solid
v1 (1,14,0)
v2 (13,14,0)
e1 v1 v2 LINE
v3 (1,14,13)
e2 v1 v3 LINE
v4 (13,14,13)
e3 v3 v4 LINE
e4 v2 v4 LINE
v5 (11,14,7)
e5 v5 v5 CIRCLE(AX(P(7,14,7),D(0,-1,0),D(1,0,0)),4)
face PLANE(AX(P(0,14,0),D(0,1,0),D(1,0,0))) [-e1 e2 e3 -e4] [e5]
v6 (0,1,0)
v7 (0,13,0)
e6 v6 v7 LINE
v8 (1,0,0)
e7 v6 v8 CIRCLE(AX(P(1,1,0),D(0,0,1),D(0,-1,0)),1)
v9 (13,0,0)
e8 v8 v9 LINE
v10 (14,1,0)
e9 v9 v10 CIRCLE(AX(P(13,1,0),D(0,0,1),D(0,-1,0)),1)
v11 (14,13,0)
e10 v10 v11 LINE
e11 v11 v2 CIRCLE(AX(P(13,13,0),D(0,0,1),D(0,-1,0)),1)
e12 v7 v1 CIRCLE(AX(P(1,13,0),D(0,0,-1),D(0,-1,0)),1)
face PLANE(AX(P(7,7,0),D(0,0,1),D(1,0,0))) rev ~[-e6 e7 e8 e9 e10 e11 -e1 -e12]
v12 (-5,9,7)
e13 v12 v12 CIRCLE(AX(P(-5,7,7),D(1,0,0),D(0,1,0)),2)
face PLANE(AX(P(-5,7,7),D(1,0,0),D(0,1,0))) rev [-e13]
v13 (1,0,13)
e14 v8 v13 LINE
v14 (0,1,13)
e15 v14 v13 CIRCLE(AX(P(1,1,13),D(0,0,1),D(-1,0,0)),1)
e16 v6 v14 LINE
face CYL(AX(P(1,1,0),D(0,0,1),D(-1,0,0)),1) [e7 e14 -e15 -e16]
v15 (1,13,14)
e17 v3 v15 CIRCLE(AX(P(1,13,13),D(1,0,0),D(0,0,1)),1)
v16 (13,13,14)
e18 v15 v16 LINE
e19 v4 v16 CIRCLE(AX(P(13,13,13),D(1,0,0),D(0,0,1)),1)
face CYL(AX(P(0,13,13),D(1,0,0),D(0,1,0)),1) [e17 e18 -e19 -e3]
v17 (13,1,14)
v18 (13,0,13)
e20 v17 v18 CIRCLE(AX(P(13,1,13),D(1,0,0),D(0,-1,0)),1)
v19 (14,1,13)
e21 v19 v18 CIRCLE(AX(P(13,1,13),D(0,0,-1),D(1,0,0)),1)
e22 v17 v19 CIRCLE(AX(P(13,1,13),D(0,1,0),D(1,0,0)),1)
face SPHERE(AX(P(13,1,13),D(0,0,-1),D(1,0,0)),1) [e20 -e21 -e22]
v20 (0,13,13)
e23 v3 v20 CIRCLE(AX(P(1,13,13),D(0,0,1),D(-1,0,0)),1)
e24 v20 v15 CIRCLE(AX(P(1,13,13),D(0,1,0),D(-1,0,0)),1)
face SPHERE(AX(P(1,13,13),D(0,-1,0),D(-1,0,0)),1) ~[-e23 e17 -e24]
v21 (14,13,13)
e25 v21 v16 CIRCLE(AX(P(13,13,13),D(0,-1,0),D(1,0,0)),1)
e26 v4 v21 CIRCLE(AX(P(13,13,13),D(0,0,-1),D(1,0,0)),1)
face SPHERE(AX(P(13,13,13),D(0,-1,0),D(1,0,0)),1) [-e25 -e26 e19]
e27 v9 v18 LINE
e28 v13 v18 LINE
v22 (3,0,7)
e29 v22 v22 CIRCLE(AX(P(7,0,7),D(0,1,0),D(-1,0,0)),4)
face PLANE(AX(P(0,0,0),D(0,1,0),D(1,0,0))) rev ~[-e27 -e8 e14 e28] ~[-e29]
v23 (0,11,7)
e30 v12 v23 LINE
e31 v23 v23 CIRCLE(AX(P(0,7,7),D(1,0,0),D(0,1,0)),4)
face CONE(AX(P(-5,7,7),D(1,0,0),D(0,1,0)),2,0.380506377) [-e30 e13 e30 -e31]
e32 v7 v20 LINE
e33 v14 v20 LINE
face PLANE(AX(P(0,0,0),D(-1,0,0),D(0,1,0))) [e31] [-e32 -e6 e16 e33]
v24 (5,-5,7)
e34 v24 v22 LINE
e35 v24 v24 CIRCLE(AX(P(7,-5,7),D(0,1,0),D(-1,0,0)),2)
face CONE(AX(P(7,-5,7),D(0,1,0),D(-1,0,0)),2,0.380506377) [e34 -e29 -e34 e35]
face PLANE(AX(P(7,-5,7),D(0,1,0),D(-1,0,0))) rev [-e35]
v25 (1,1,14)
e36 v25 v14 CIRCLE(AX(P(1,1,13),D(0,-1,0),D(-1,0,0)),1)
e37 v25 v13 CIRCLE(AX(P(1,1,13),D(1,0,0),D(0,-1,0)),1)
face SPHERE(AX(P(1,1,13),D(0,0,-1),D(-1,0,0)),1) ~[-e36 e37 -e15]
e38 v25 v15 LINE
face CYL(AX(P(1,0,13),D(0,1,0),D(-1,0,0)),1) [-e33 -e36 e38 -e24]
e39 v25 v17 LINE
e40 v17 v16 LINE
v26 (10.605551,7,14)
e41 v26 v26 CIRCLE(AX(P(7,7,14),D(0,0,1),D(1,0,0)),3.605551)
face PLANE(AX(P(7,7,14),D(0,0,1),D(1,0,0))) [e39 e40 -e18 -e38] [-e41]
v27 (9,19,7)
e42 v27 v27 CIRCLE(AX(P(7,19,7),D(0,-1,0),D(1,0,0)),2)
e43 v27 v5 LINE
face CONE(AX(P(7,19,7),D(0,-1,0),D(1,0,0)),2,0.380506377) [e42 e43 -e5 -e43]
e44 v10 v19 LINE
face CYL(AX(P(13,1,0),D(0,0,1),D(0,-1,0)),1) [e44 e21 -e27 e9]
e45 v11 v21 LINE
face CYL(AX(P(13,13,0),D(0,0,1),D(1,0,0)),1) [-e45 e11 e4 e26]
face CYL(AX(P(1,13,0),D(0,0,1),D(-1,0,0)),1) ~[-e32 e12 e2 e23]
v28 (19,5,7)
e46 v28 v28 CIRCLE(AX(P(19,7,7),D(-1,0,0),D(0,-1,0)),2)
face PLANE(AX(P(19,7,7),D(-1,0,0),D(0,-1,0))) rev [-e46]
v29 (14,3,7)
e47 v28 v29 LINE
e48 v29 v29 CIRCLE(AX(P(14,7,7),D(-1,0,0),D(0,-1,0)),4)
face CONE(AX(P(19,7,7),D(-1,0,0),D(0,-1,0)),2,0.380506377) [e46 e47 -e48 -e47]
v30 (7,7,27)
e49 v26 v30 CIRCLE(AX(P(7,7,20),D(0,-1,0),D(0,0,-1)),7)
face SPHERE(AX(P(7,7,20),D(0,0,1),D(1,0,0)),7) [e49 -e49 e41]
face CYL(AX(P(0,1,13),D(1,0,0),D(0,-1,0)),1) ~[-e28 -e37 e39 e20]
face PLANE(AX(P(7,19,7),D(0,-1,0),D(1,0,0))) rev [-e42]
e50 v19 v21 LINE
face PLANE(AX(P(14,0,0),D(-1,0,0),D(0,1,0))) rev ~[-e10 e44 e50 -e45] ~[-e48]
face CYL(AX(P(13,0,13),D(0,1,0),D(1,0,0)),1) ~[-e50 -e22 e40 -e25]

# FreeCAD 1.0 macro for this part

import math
import FreeCAD as App
import Part
import Sketcher
from FreeCAD import Vector


def edges_at(feature, points):
    """Names of the edges that pass closest to the given points."""
    edges = feature.Shape.Edges
    near = lambda p: min(range(len(edges)), key=lambda i: edges[i].distToShape(Part.Vertex(*p))[0])
    return sorted({f"Edge{near(p) + 1}" for p in points})


def add_polygon(sketch, points):
    """Adds a closed chain of lines whose ends are joined by coincident constraints."""
    first, n = sketch.GeometryCount, len(points)
    for a, b in zip(points, points[1:] + points[:1]):
        sketch.addGeometry(Part.LineSegment(App.Vector(*a, 0), App.Vector(*b, 0)), False)
    for i in range(n):
        sketch.addConstraint(Sketcher.Constraint("Coincident", first + i, 2, first + (i + 1) % n, 1))

doc = App.newDocument("Part")
body = doc.addObject("PartDesign::Body", "Body")

# Sketch on XY plane
sketch1 = body.newObject("Sketcher::SketchObject", "Sketch")
sketch1.AttachmentSupport = (doc.getObject("XY_Plane"), [""])
sketch1.MapMode = "FlatFace"
sketch1.AttachmentOffset = App.Placement(Vector(0, 0, 7), App.Rotation())
add_polygon(sketch1, [(7, -5), (5, -5), (3, 0), (7, 0)])  # lines 0-3
sketch1.addGeometry(Part.LineSegment(Vector(7, -5, 0), Vector(7, 0, 0)), True)  # axis
sketch1.addConstraint([
    Sketcher.Constraint("Horizontal", 0),
    Sketcher.Constraint("Horizontal", 2),
    Sketcher.Constraint("Vertical", 3),
    Sketcher.Constraint("Vertical", 4),
    Sketcher.Constraint("Coincident", 4, 1, 3, 2),
    Sketcher.Constraint("PointOnObject", 1, 2, -1),
    Sketcher.Constraint("PointOnObject", 4, 2, -1),
    Sketcher.Constraint("DistanceX", 0, 2, 0, 1, 2.0),
    Sketcher.Constraint("DistanceX", 2, 1, 2, 2, 4.0),
    Sketcher.Constraint("DistanceY", 3, 2, 3, 1, 5.0),
    Sketcher.Constraint("DistanceX", -1, 1, 0, 2, 5.0),
])
revolution = body.newObject("PartDesign::Revolution", "Revolution")
revolution.Profile = sketch1
revolution.ReferenceAxis = (sketch1, ["Axis0"])
revolution.Angle = 360
body2 = doc.addObject("PartDesign::Body", "Body001")

# Sketch on XY plane
sketch2 = body2.newObject("Sketcher::SketchObject", "Sketch001")
sketch2.AttachmentSupport = (doc.getObject("XY_Plane001"), [""])
sketch2.MapMode = "FlatFace"
sketch2.AttachmentOffset = App.Placement(Vector(0, 0, 7), App.Rotation())
add_polygon(sketch2, [(19, 7), (19, 5), (14, 3), (14, 7)])  # lines 0-3
sketch2.addGeometry(Part.LineSegment(Vector(19, 7, 0), Vector(14, 7, 0)), True)  # axis
sketch2.addConstraint([
    Sketcher.Constraint("Vertical", 0),
    Sketcher.Constraint("Vertical", 2),
    Sketcher.Constraint("Horizontal", 3),
    Sketcher.Constraint("Horizontal", 4),
    Sketcher.Constraint("Coincident", 4, 1, 3, 2),
    Sketcher.Constraint("Vertical", 1, 2, 4, 2),
    Sketcher.Constraint("DistanceX", 3, 1, 3, 2, 5.0),
    Sketcher.Constraint("DistanceY", 0, 2, 0, 1, 2.0),
    Sketcher.Constraint("DistanceY", 2, 1, 2, 2, 4.0),
    Sketcher.Constraint("DistanceX", -1, 1, 0, 2, 19.0),
    Sketcher.Constraint("DistanceY", -1, 1, 0, 2, 5.0),
])
revolution2 = body2.newObject("PartDesign::Revolution", "Revolution001")
revolution2.Profile = sketch2
revolution2.ReferenceAxis = (sketch2, ["Axis0"])
revolution2.Angle = 360
body3 = doc.addObject("PartDesign::Body", "Body002")

# Sketch on XY plane
sketch3 = body3.newObject("Sketcher::SketchObject", "Sketch002")
sketch3.AttachmentSupport = (doc.getObject("XY_Plane002"), [""])
sketch3.MapMode = "FlatFace"
sketch3.AttachmentOffset = App.Placement(Vector(0, 0, 7), App.Rotation())
add_polygon(sketch3, [(7, 19), (9, 19), (11, 14), (7, 14)])  # lines 0-3
sketch3.addGeometry(Part.LineSegment(Vector(7, 19, 0), Vector(7, 14, 0)), True)  # axis
sketch3.addConstraint([
    Sketcher.Constraint("Horizontal", 0),
    Sketcher.Constraint("Horizontal", 2),
    Sketcher.Constraint("Vertical", 3),
    Sketcher.Constraint("Vertical", 4),
    Sketcher.Constraint("Coincident", 4, 1, 3, 2),
    Sketcher.Constraint("Horizontal", 1, 2, 4, 2),
    Sketcher.Constraint("DistanceX", 0, 1, 0, 2, 2.0),
    Sketcher.Constraint("DistanceX", 2, 2, 2, 1, 4.0),
    Sketcher.Constraint("DistanceY", 3, 1, 3, 2, 5.0),
    Sketcher.Constraint("DistanceX", -1, 1, 0, 2, 9.0),
    Sketcher.Constraint("DistanceY", -1, 1, 0, 2, 19.0),
])
revolution3 = body3.newObject("PartDesign::Revolution", "Revolution002")
revolution3.Profile = sketch3
revolution3.ReferenceAxis = (sketch3, ["Axis0"])
revolution3.Angle = 360
body4 = doc.addObject("PartDesign::Body", "Body003")

# Sketch on XY plane
sketch4 = body4.newObject("Sketcher::SketchObject", "Sketch003")
sketch4.AttachmentSupport = (doc.getObject("XY_Plane003"), [""])
sketch4.MapMode = "FlatFace"
sketch4.AttachmentOffset = App.Placement(Vector(0, 0, 7), App.Rotation())
add_polygon(sketch4, [(-5, 7), (-5, 9), (0, 11), (0, 7)])  # lines 0-3
sketch4.addGeometry(Part.LineSegment(Vector(-5, 7, 0), Vector(0, 7, 0)), True)  # axis
sketch4.addConstraint([
    Sketcher.Constraint("Vertical", 0),
    Sketcher.Constraint("Vertical", 2),
    Sketcher.Constraint("Horizontal", 3),
    Sketcher.Constraint("Horizontal", 4),
    Sketcher.Constraint("Coincident", 4, 1, 3, 2),
    Sketcher.Constraint("PointOnObject", 1, 2, -2),
    Sketcher.Constraint("PointOnObject", 4, 2, -2),
    Sketcher.Constraint("DistanceX", 3, 2, 3, 1, 5.0),
    Sketcher.Constraint("DistanceY", 0, 1, 0, 2, 2.0),
    Sketcher.Constraint("DistanceY", 2, 2, 2, 1, 4.0),
    Sketcher.Constraint("DistanceY", -1, 1, 0, 2, 9.0),
])
revolution4 = body4.newObject("PartDesign::Revolution", "Revolution003")
revolution4.Profile = sketch4
revolution4.ReferenceAxis = (sketch4, ["Axis0"])
revolution4.Angle = 360
body5 = doc.addObject("PartDesign::Body", "Body004")

# Sketch on XY plane
sketch5 = body5.newObject("Sketcher::SketchObject", "Sketch004")
sketch5.AttachmentSupport = (doc.getObject("XY_Plane004"), [""])
sketch5.MapMode = "FlatFace"
add_polygon(sketch5, [(0, 14), (0, 0), (14, 0), (14, 14)])  # lines 0-3
sketch5.addConstraint([
    Sketcher.Constraint("Vertical", 0),
    Sketcher.Constraint("Horizontal", 1),
    Sketcher.Constraint("Vertical", 2),
    Sketcher.Constraint("Horizontal", 3),
    Sketcher.Constraint("Coincident", 0, 2, -1, 1),
    Sketcher.Constraint("Equal", 3, 0),
    Sketcher.Constraint("DistanceX", 1, 1, 1, 2, 14.0),
])
pad1 = body5.newObject("PartDesign::Pad", "Pad")
pad1.Profile = sketch5
pad1.Length = 14
doc.recompute()

fillet = body5.newObject("PartDesign::Fillet", "Fillet")
fillet.Base = (pad1, edges_at(pad1, [
    (0, 0, 7),
    (0, 7, 14),
    (0, 14, 7),
    (14, 0, 7),
    (14, 7, 14),
    (14, 14, 7),
    (7, 0, 14),
    (7, 14, 14),
]))
fillet.Radius = 1
body6 = doc.addObject("PartDesign::Body", "Body005")
body6.AllowCompound = True

# Sketch on XZ plane
sketch6 = body6.newObject("Sketcher::SketchObject", "Sketch005")
sketch6.AttachmentSupport = (doc.getObject("XZ_Plane005"), [""])
sketch6.MapMode = "FlatFace"
sketch6.AttachmentOffset = App.Placement(Vector(0, 0, -7), App.Rotation())
sketch6.addGeometry([
    Part.ArcOfCircle(Part.Circle(Vector(7, 20, 0), Vector(0, 0, 1), 7), math.radians(-90), math.radians(90)),
    Part.LineSegment(Vector(7, 27, 0), Vector(7, 13, 0)),
], False)
sketch6.addGeometry(Part.LineSegment(Vector(7, 13, 0), Vector(7, 27, 0)), True)  # axis
sketch6.addConstraint([
    Sketcher.Constraint("Coincident", 0, 1, 1, 2),
    Sketcher.Constraint("Coincident", 1, 1, 0, 2),
    Sketcher.Constraint("Vertical", 1),
    Sketcher.Constraint("Vertical", 2),
    Sketcher.Constraint("Coincident", 2, 1, 0, 1),
    Sketcher.Constraint("Equal", 1, 2),
    Sketcher.Constraint("Radius", 0, 7.0),
    Sketcher.Constraint("DistanceX", -1, 1, 0, 3, 7.0),
    Sketcher.Constraint("DistanceY", -1, 1, 0, 3, 20.0),
    Sketcher.Constraint("DistanceX", -1, 1, 0, 1, 7.0),
])
revolution5 = body6.newObject("PartDesign::Revolution", "Revolution004")
revolution5.Profile = sketch6
revolution5.ReferenceAxis = (sketch6, ["Axis0"])
revolution5.Angle = 360
doc.recompute()

boolean = body6.newObject("PartDesign::Boolean", "Boolean")
boolean.Type = "Fuse"
boolean.addObjects([body])
doc.recompute()

boolean2 = body6.newObject("PartDesign::Boolean", "Boolean001")
boolean2.Type = "Fuse"
boolean2.addObjects([body2])
doc.recompute()

boolean3 = body6.newObject("PartDesign::Boolean", "Boolean002")
boolean3.Type = "Fuse"
boolean3.addObjects([body3])
doc.recompute()

boolean4 = body6.newObject("PartDesign::Boolean", "Boolean003")
boolean4.Type = "Fuse"
boolean4.addObjects([body4])
doc.recompute()

boolean5 = body6.newObject("PartDesign::Boolean", "Boolean004")
boolean5.Type = "Fuse"
boolean5.addObjects([body5])

doc.recompute()
